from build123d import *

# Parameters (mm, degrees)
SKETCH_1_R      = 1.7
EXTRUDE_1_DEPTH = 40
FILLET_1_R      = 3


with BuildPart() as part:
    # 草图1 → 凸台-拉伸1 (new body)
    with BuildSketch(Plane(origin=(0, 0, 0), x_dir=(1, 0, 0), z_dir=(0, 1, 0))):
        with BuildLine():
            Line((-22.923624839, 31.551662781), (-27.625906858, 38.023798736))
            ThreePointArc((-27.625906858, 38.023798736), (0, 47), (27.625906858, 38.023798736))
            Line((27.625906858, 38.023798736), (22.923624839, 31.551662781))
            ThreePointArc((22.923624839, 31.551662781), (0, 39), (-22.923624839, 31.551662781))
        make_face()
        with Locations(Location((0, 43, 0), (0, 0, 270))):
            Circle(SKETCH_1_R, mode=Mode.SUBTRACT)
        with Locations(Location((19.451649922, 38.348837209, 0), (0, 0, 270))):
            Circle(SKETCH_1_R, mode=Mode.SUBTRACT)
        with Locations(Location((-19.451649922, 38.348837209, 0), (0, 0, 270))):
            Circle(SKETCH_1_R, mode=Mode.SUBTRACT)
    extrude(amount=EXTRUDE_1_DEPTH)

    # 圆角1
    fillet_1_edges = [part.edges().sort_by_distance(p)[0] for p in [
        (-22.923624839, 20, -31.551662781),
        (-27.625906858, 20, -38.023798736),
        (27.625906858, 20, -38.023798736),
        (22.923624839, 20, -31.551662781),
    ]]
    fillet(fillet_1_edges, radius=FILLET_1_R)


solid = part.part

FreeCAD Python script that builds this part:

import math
import FreeCAD as App
import Part
import Sketcher
Q = App.Units.Quantity


def edges_at(feature, points):
    """Names of the edges that pass closest to the given points."""
    edges = feature.Shape.Edges
    near = lambda p: min(range(len(edges)), key=lambda i: edges[i].distToShape(Part.Vertex(*p))[0])
    return sorted({f"Edge{near(p) + 1}" for p in points})

doc = App.newDocument("Part")
body = doc.addObject("PartDesign::Body", "Body")

sketch1 = doc.addObject("Sketcher::SketchObject", "Sketch")
body.addObject(sketch1)
sketch1.AttachmentSupport = (doc.XZ_Plane, [""])
sketch1.MapMode = "FlatFace"
sketch1.addGeometry([
    Part.LineSegment(App.Vector(-27.6, -38, 0), App.Vector(-22.9, -31.6, 0)),
    Part.ArcOfCircle(Part.Circle(App.Vector(0, 0, 0), App.Vector(0, 0, 1), 39), math.radians(-126), math.radians(-54)),
    Part.LineSegment(App.Vector(22.9, -31.6, 0), App.Vector(27.6, -38, 0)),
    Part.ArcOfCircle(Part.Circle(App.Vector(0, 0, 0), App.Vector(0, 0, 1), 47), math.radians(-126), math.radians(-54)),
    Part.Circle(App.Vector(19.5, -38.3, 0), App.Vector(0, 0, 1), 1.7),
    Part.Circle(App.Vector(-19.5, -38.3, 0), App.Vector(0, 0, 1), 1.7),
    Part.Circle(App.Vector(0, -43, 0), App.Vector(0, 0, 1), 1.7),
], False)
sketch1.addConstraint([
    Sketcher.Constraint("Coincident", 0, 2, 1, 1),
    Sketcher.Constraint("Coincident", 1, 2, 2, 1),
    Sketcher.Constraint("Coincident", 2, 2, 3, 2),
    Sketcher.Constraint("Coincident", 3, 1, 0, 1),
    Sketcher.Constraint("Coincident", 1, 3, -1, 1),
    Sketcher.Constraint("Coincident", 3, 3, -1, 1),
    Sketcher.Constraint("Equal", 4, 5),
    Sketcher.Constraint("Equal", 5, 6),
    Sketcher.Constraint("Symmetric", 4, 3, 5, 3, -2),
    Sketcher.Constraint("PointOnObject", 6, 3, -2),
    Sketcher.Constraint("Horizontal", 0, 2, 1, 2),
    Sketcher.Constraint("Horizontal", 2, 2, 3, 1),
    Sketcher.Constraint("Radius", 1, Q("39 mm")),
    Sketcher.Constraint("Radius", 3, Q("47 mm")),
    Sketcher.Constraint("Diameter", 4, Q("3.4 mm")),
    Sketcher.Constraint("Angle", 0, Q("54 deg")),
    Sketcher.Constraint("DistanceY", 6, 3, -1, 1, Q("43 mm")),
    Sketcher.Constraint("DistanceY", 2, 2, -1, 1, Q("38.023799 mm")),
    Sketcher.Constraint("DistanceX", 5, 3, 4, 3, Q("38.9033 mm")),
    Sketcher.Constraint("DistanceY", 4, 3, 2, 2, Q("0.325038 mm")),
])
pad1 = doc.addObject("PartDesign::Pad", "Pad")
body.addObject(pad1)
pad1.Profile = sketch1
pad1.Length = 40
pad1.Reversed = True
doc.recompute()

fillet = doc.addObject("PartDesign::Fillet", "Fillet")
body.addObject(fillet)
fillet.Base = (pad1, edges_at(pad1, [
    (-22.924, 20, -31.552),
    (-27.626, 20, -38.024),
    (27.626, 20, -38.024),
    (22.924, 20, -31.552),
]))
fillet.Radius = 3

doc.recompute()
